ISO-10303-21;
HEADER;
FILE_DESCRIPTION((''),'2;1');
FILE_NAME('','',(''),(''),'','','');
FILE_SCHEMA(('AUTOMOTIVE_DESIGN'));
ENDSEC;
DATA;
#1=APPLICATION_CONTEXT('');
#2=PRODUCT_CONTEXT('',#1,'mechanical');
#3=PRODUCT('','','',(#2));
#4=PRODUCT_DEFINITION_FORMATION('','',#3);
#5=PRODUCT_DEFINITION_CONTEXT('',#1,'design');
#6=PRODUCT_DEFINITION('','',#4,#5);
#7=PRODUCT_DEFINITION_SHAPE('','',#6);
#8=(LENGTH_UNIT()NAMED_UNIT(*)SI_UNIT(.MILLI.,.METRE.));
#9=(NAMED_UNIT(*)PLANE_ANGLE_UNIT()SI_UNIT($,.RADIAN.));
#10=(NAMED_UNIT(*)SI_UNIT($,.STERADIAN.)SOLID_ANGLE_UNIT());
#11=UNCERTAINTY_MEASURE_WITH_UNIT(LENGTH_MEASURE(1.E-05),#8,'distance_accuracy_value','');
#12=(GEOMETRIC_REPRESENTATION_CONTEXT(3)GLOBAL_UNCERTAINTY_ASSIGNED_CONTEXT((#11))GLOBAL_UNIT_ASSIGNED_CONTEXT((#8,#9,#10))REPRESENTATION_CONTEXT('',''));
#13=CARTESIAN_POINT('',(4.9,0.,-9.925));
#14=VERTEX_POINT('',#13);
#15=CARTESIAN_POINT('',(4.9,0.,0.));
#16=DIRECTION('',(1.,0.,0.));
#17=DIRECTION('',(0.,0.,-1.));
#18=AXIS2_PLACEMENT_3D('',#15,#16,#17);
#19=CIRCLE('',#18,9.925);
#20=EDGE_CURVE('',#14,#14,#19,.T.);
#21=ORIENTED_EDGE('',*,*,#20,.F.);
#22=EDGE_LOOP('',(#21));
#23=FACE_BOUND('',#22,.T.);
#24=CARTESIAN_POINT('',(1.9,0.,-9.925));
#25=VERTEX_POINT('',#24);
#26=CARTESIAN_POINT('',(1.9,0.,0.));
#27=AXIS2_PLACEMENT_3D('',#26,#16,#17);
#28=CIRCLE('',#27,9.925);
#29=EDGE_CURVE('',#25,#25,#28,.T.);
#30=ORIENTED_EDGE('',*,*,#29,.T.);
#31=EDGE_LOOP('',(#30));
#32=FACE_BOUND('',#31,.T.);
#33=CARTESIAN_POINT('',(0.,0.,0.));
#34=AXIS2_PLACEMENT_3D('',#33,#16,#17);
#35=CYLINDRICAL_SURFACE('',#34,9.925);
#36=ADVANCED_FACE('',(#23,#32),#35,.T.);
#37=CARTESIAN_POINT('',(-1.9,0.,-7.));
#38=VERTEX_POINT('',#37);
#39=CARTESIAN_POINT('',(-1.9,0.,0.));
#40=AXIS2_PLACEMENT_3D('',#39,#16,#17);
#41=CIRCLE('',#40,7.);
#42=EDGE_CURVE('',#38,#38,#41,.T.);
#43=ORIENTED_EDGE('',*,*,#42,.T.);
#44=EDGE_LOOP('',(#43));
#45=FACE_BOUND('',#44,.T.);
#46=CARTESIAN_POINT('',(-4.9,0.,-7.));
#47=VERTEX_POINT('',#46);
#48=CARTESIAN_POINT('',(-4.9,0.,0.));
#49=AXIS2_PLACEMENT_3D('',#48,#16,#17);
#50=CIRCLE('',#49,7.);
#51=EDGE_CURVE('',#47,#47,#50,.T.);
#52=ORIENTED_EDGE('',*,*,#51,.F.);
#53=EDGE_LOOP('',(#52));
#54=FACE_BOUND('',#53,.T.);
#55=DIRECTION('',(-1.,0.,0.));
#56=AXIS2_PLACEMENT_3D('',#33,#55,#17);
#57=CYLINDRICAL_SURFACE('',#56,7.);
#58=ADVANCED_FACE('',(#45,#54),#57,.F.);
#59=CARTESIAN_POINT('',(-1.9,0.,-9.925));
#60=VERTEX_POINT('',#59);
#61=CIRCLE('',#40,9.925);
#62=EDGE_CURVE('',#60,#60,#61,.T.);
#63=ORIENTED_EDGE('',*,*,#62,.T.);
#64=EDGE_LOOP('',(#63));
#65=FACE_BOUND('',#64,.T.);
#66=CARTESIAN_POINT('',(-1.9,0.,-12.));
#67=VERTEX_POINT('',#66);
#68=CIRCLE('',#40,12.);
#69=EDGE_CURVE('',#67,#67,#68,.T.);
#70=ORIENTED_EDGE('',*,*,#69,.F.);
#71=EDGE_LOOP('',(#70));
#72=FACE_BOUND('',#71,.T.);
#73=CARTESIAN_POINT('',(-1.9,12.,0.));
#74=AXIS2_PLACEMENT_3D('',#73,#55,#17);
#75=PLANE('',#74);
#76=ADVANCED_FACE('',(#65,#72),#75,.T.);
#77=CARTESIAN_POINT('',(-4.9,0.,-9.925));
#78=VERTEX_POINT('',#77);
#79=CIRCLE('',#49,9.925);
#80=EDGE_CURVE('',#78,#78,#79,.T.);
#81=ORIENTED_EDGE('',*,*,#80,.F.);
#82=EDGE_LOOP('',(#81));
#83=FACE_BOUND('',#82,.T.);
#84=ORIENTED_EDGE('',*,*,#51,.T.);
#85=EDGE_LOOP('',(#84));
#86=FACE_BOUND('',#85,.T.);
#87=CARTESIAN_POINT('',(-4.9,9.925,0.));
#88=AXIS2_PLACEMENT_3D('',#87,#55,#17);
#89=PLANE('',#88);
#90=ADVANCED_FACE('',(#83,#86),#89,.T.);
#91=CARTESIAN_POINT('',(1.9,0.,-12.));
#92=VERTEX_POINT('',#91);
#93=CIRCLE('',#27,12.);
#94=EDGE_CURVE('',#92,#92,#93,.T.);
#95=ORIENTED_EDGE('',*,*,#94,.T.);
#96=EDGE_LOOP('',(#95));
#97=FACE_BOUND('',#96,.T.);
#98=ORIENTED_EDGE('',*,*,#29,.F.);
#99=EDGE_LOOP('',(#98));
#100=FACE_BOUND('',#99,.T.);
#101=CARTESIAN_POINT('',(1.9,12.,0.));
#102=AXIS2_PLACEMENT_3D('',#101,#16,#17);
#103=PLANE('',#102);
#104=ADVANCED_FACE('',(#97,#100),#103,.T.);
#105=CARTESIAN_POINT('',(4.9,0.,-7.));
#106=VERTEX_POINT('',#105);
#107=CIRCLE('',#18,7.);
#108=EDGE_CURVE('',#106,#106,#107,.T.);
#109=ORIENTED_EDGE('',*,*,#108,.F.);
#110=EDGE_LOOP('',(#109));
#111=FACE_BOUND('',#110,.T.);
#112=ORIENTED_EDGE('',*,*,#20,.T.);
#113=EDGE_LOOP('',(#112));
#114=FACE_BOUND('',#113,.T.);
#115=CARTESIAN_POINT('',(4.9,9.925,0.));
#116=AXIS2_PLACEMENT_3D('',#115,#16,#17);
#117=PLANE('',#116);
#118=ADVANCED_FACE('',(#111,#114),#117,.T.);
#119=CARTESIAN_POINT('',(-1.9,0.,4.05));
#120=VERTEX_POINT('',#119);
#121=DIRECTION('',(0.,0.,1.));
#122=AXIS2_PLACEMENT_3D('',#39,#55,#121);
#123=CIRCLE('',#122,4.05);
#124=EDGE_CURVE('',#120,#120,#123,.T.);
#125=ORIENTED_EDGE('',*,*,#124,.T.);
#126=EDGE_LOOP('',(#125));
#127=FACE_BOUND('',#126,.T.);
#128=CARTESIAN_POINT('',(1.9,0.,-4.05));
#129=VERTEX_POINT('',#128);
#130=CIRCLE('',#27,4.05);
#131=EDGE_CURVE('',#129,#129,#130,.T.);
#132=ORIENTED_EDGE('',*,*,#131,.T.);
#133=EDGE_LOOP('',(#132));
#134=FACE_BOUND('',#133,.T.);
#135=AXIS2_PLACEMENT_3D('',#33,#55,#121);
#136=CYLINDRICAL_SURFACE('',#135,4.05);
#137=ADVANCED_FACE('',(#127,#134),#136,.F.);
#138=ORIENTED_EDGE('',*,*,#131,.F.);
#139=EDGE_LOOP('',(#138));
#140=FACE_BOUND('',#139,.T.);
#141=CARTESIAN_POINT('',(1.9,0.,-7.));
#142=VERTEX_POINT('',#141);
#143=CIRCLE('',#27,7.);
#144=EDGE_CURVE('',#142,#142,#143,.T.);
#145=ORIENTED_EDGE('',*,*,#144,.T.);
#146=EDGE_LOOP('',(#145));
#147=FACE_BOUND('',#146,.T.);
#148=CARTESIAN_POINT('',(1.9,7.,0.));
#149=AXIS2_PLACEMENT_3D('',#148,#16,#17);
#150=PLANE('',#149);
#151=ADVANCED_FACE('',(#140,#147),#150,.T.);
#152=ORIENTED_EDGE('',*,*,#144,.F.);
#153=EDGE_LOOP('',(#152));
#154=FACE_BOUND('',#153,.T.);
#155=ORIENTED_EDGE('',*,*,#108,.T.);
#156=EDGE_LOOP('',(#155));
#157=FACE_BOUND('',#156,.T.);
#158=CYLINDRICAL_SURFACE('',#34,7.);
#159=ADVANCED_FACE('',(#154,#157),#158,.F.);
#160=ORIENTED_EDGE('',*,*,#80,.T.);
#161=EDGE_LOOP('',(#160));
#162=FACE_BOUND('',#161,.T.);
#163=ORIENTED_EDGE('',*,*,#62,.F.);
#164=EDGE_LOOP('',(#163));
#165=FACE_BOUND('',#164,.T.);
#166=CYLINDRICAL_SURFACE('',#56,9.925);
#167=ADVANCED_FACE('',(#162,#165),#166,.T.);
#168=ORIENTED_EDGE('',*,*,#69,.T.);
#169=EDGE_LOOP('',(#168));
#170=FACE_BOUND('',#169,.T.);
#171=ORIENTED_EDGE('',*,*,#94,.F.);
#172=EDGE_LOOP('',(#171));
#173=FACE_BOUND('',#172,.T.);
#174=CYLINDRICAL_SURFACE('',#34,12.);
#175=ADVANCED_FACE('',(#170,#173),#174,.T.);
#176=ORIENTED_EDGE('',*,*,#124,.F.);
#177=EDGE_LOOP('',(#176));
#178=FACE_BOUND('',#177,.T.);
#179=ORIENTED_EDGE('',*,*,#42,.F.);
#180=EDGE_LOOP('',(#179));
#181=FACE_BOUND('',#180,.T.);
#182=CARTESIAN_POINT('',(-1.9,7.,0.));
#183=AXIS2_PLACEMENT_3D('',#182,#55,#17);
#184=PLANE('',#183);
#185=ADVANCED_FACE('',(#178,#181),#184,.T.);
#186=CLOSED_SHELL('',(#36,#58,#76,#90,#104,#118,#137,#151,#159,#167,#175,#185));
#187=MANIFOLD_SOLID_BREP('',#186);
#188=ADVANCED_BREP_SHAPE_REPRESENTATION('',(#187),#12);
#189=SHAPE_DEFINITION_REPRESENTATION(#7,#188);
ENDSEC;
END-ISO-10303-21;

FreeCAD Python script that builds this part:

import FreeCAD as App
import Part
import Sketcher
from FreeCAD import Vector
Q = App.Units.Quantity


def add_polygon(sketch, points):
    """Adds a closed chain of lines whose ends are joined by coincident constraints."""
    first, n = sketch.GeometryCount, len(points)
    for a, b in zip(points, points[1:] + points[:1]):
        sketch.addGeometry(Part.LineSegment(App.Vector(*a, 0), App.Vector(*b, 0)), False)
    for i in range(n):
        sketch.addConstraint(Sketcher.Constraint("Coincident", first + i, 2, first + (i + 1) % n, 1))

doc = App.newDocument("Part")
body = doc.addObject("PartDesign::Body", "Body")

sketch1 = body.newObject("Sketcher::SketchObject", "Sketch")
sketch1.AttachmentSupport = (doc.getObject("XY_Plane"), [""])
sketch1.MapMode = "FlatFace"
add_polygon(sketch1, [(0, 12), (0, 0), (1.9, 0), (1.9, 7), (4.9, 7), (4.9, 9.9), (1.9, 9.9), (1.9, 12)])
sketch1.addConstraint(Sketcher.Constraint("Vertical", 0))
sketch1.addConstraint(Sketcher.Constraint("Horizontal", 1))
sketch1.addConstraint(Sketcher.Constraint("Vertical", 2))
sketch1.addConstraint(Sketcher.Constraint("Horizontal", 3))
sketch1.addConstraint(Sketcher.Constraint("Vertical", 4))
sketch1.addConstraint(Sketcher.Constraint("Horizontal", 5))
sketch1.addConstraint(Sketcher.Constraint("Vertical", 6))
sketch1.addConstraint(Sketcher.Constraint("Horizontal", 7))
sketch1.addConstraint(Sketcher.Constraint("Coincident", 0, 2, -1, 1))
sketch1.addConstraint(Sketcher.Constraint("Vertical", 2, 2, 5, 2))
sketch1.addConstraint(Sketcher.Constraint("DistanceX", 3, 1, 3, 2, Q("3 mm")))
sketch1.addConstraint(Sketcher.Constraint("DistanceY", 0, 2, 0, 1, Q("12 mm")))
sketch1.addConstraint(Sketcher.Constraint("DistanceY", 2, 1, 2, 2, Q("7 mm")))
sketch1.addConstraint(Sketcher.Constraint("DistanceX", 1, 1, 1, 2, Q("1.9 mm")))
sketch1.addConstraint(Sketcher.Constraint("DistanceY", 4, 1, 4, 2, Q("2.925 mm")))
revolution = body.newObject("PartDesign::Revolution", "Revolution")
revolution.Profile = sketch1
revolution.ReferenceAxis = (sketch1, ["H_Axis"])
revolution.Angle = 360

sketch2 = body.newObject("Sketcher::SketchObject", "Sketch001")
sketch2.AttachmentSupport = (doc.getObject("YZ_Plane"), [""])
sketch2.MapMode = "FlatFace"
sketch2.addGeometry(Part.Circle(Vector(0, 0, 0), Vector(0, 0, 1), 4), False)
sketch2.addConstraint(Sketcher.Constraint("Coincident", 0, 3, -1, 1))
sketch2.addConstraint(Sketcher.Constraint("Diameter", 0, Q("8.1 mm")))
doc.recompute()
hole = body.newObject("PartDesign::Hole", "Hole")
hole.Profile = sketch2
hole.ThreadType = "None"
hole.Diameter = 8.1
hole.DepthType = "ThroughAll"
hole.Reversed = True
doc.recompute()

mirrored = body.newObject("PartDesign::Mirrored", "Mirrored")
mirrored.Originals = [revolution, hole]
mirrored.MirrorPlane = (doc.getObject("YZ_Plane"), [""])
body.Tip = mirrored

doc.recompute()
